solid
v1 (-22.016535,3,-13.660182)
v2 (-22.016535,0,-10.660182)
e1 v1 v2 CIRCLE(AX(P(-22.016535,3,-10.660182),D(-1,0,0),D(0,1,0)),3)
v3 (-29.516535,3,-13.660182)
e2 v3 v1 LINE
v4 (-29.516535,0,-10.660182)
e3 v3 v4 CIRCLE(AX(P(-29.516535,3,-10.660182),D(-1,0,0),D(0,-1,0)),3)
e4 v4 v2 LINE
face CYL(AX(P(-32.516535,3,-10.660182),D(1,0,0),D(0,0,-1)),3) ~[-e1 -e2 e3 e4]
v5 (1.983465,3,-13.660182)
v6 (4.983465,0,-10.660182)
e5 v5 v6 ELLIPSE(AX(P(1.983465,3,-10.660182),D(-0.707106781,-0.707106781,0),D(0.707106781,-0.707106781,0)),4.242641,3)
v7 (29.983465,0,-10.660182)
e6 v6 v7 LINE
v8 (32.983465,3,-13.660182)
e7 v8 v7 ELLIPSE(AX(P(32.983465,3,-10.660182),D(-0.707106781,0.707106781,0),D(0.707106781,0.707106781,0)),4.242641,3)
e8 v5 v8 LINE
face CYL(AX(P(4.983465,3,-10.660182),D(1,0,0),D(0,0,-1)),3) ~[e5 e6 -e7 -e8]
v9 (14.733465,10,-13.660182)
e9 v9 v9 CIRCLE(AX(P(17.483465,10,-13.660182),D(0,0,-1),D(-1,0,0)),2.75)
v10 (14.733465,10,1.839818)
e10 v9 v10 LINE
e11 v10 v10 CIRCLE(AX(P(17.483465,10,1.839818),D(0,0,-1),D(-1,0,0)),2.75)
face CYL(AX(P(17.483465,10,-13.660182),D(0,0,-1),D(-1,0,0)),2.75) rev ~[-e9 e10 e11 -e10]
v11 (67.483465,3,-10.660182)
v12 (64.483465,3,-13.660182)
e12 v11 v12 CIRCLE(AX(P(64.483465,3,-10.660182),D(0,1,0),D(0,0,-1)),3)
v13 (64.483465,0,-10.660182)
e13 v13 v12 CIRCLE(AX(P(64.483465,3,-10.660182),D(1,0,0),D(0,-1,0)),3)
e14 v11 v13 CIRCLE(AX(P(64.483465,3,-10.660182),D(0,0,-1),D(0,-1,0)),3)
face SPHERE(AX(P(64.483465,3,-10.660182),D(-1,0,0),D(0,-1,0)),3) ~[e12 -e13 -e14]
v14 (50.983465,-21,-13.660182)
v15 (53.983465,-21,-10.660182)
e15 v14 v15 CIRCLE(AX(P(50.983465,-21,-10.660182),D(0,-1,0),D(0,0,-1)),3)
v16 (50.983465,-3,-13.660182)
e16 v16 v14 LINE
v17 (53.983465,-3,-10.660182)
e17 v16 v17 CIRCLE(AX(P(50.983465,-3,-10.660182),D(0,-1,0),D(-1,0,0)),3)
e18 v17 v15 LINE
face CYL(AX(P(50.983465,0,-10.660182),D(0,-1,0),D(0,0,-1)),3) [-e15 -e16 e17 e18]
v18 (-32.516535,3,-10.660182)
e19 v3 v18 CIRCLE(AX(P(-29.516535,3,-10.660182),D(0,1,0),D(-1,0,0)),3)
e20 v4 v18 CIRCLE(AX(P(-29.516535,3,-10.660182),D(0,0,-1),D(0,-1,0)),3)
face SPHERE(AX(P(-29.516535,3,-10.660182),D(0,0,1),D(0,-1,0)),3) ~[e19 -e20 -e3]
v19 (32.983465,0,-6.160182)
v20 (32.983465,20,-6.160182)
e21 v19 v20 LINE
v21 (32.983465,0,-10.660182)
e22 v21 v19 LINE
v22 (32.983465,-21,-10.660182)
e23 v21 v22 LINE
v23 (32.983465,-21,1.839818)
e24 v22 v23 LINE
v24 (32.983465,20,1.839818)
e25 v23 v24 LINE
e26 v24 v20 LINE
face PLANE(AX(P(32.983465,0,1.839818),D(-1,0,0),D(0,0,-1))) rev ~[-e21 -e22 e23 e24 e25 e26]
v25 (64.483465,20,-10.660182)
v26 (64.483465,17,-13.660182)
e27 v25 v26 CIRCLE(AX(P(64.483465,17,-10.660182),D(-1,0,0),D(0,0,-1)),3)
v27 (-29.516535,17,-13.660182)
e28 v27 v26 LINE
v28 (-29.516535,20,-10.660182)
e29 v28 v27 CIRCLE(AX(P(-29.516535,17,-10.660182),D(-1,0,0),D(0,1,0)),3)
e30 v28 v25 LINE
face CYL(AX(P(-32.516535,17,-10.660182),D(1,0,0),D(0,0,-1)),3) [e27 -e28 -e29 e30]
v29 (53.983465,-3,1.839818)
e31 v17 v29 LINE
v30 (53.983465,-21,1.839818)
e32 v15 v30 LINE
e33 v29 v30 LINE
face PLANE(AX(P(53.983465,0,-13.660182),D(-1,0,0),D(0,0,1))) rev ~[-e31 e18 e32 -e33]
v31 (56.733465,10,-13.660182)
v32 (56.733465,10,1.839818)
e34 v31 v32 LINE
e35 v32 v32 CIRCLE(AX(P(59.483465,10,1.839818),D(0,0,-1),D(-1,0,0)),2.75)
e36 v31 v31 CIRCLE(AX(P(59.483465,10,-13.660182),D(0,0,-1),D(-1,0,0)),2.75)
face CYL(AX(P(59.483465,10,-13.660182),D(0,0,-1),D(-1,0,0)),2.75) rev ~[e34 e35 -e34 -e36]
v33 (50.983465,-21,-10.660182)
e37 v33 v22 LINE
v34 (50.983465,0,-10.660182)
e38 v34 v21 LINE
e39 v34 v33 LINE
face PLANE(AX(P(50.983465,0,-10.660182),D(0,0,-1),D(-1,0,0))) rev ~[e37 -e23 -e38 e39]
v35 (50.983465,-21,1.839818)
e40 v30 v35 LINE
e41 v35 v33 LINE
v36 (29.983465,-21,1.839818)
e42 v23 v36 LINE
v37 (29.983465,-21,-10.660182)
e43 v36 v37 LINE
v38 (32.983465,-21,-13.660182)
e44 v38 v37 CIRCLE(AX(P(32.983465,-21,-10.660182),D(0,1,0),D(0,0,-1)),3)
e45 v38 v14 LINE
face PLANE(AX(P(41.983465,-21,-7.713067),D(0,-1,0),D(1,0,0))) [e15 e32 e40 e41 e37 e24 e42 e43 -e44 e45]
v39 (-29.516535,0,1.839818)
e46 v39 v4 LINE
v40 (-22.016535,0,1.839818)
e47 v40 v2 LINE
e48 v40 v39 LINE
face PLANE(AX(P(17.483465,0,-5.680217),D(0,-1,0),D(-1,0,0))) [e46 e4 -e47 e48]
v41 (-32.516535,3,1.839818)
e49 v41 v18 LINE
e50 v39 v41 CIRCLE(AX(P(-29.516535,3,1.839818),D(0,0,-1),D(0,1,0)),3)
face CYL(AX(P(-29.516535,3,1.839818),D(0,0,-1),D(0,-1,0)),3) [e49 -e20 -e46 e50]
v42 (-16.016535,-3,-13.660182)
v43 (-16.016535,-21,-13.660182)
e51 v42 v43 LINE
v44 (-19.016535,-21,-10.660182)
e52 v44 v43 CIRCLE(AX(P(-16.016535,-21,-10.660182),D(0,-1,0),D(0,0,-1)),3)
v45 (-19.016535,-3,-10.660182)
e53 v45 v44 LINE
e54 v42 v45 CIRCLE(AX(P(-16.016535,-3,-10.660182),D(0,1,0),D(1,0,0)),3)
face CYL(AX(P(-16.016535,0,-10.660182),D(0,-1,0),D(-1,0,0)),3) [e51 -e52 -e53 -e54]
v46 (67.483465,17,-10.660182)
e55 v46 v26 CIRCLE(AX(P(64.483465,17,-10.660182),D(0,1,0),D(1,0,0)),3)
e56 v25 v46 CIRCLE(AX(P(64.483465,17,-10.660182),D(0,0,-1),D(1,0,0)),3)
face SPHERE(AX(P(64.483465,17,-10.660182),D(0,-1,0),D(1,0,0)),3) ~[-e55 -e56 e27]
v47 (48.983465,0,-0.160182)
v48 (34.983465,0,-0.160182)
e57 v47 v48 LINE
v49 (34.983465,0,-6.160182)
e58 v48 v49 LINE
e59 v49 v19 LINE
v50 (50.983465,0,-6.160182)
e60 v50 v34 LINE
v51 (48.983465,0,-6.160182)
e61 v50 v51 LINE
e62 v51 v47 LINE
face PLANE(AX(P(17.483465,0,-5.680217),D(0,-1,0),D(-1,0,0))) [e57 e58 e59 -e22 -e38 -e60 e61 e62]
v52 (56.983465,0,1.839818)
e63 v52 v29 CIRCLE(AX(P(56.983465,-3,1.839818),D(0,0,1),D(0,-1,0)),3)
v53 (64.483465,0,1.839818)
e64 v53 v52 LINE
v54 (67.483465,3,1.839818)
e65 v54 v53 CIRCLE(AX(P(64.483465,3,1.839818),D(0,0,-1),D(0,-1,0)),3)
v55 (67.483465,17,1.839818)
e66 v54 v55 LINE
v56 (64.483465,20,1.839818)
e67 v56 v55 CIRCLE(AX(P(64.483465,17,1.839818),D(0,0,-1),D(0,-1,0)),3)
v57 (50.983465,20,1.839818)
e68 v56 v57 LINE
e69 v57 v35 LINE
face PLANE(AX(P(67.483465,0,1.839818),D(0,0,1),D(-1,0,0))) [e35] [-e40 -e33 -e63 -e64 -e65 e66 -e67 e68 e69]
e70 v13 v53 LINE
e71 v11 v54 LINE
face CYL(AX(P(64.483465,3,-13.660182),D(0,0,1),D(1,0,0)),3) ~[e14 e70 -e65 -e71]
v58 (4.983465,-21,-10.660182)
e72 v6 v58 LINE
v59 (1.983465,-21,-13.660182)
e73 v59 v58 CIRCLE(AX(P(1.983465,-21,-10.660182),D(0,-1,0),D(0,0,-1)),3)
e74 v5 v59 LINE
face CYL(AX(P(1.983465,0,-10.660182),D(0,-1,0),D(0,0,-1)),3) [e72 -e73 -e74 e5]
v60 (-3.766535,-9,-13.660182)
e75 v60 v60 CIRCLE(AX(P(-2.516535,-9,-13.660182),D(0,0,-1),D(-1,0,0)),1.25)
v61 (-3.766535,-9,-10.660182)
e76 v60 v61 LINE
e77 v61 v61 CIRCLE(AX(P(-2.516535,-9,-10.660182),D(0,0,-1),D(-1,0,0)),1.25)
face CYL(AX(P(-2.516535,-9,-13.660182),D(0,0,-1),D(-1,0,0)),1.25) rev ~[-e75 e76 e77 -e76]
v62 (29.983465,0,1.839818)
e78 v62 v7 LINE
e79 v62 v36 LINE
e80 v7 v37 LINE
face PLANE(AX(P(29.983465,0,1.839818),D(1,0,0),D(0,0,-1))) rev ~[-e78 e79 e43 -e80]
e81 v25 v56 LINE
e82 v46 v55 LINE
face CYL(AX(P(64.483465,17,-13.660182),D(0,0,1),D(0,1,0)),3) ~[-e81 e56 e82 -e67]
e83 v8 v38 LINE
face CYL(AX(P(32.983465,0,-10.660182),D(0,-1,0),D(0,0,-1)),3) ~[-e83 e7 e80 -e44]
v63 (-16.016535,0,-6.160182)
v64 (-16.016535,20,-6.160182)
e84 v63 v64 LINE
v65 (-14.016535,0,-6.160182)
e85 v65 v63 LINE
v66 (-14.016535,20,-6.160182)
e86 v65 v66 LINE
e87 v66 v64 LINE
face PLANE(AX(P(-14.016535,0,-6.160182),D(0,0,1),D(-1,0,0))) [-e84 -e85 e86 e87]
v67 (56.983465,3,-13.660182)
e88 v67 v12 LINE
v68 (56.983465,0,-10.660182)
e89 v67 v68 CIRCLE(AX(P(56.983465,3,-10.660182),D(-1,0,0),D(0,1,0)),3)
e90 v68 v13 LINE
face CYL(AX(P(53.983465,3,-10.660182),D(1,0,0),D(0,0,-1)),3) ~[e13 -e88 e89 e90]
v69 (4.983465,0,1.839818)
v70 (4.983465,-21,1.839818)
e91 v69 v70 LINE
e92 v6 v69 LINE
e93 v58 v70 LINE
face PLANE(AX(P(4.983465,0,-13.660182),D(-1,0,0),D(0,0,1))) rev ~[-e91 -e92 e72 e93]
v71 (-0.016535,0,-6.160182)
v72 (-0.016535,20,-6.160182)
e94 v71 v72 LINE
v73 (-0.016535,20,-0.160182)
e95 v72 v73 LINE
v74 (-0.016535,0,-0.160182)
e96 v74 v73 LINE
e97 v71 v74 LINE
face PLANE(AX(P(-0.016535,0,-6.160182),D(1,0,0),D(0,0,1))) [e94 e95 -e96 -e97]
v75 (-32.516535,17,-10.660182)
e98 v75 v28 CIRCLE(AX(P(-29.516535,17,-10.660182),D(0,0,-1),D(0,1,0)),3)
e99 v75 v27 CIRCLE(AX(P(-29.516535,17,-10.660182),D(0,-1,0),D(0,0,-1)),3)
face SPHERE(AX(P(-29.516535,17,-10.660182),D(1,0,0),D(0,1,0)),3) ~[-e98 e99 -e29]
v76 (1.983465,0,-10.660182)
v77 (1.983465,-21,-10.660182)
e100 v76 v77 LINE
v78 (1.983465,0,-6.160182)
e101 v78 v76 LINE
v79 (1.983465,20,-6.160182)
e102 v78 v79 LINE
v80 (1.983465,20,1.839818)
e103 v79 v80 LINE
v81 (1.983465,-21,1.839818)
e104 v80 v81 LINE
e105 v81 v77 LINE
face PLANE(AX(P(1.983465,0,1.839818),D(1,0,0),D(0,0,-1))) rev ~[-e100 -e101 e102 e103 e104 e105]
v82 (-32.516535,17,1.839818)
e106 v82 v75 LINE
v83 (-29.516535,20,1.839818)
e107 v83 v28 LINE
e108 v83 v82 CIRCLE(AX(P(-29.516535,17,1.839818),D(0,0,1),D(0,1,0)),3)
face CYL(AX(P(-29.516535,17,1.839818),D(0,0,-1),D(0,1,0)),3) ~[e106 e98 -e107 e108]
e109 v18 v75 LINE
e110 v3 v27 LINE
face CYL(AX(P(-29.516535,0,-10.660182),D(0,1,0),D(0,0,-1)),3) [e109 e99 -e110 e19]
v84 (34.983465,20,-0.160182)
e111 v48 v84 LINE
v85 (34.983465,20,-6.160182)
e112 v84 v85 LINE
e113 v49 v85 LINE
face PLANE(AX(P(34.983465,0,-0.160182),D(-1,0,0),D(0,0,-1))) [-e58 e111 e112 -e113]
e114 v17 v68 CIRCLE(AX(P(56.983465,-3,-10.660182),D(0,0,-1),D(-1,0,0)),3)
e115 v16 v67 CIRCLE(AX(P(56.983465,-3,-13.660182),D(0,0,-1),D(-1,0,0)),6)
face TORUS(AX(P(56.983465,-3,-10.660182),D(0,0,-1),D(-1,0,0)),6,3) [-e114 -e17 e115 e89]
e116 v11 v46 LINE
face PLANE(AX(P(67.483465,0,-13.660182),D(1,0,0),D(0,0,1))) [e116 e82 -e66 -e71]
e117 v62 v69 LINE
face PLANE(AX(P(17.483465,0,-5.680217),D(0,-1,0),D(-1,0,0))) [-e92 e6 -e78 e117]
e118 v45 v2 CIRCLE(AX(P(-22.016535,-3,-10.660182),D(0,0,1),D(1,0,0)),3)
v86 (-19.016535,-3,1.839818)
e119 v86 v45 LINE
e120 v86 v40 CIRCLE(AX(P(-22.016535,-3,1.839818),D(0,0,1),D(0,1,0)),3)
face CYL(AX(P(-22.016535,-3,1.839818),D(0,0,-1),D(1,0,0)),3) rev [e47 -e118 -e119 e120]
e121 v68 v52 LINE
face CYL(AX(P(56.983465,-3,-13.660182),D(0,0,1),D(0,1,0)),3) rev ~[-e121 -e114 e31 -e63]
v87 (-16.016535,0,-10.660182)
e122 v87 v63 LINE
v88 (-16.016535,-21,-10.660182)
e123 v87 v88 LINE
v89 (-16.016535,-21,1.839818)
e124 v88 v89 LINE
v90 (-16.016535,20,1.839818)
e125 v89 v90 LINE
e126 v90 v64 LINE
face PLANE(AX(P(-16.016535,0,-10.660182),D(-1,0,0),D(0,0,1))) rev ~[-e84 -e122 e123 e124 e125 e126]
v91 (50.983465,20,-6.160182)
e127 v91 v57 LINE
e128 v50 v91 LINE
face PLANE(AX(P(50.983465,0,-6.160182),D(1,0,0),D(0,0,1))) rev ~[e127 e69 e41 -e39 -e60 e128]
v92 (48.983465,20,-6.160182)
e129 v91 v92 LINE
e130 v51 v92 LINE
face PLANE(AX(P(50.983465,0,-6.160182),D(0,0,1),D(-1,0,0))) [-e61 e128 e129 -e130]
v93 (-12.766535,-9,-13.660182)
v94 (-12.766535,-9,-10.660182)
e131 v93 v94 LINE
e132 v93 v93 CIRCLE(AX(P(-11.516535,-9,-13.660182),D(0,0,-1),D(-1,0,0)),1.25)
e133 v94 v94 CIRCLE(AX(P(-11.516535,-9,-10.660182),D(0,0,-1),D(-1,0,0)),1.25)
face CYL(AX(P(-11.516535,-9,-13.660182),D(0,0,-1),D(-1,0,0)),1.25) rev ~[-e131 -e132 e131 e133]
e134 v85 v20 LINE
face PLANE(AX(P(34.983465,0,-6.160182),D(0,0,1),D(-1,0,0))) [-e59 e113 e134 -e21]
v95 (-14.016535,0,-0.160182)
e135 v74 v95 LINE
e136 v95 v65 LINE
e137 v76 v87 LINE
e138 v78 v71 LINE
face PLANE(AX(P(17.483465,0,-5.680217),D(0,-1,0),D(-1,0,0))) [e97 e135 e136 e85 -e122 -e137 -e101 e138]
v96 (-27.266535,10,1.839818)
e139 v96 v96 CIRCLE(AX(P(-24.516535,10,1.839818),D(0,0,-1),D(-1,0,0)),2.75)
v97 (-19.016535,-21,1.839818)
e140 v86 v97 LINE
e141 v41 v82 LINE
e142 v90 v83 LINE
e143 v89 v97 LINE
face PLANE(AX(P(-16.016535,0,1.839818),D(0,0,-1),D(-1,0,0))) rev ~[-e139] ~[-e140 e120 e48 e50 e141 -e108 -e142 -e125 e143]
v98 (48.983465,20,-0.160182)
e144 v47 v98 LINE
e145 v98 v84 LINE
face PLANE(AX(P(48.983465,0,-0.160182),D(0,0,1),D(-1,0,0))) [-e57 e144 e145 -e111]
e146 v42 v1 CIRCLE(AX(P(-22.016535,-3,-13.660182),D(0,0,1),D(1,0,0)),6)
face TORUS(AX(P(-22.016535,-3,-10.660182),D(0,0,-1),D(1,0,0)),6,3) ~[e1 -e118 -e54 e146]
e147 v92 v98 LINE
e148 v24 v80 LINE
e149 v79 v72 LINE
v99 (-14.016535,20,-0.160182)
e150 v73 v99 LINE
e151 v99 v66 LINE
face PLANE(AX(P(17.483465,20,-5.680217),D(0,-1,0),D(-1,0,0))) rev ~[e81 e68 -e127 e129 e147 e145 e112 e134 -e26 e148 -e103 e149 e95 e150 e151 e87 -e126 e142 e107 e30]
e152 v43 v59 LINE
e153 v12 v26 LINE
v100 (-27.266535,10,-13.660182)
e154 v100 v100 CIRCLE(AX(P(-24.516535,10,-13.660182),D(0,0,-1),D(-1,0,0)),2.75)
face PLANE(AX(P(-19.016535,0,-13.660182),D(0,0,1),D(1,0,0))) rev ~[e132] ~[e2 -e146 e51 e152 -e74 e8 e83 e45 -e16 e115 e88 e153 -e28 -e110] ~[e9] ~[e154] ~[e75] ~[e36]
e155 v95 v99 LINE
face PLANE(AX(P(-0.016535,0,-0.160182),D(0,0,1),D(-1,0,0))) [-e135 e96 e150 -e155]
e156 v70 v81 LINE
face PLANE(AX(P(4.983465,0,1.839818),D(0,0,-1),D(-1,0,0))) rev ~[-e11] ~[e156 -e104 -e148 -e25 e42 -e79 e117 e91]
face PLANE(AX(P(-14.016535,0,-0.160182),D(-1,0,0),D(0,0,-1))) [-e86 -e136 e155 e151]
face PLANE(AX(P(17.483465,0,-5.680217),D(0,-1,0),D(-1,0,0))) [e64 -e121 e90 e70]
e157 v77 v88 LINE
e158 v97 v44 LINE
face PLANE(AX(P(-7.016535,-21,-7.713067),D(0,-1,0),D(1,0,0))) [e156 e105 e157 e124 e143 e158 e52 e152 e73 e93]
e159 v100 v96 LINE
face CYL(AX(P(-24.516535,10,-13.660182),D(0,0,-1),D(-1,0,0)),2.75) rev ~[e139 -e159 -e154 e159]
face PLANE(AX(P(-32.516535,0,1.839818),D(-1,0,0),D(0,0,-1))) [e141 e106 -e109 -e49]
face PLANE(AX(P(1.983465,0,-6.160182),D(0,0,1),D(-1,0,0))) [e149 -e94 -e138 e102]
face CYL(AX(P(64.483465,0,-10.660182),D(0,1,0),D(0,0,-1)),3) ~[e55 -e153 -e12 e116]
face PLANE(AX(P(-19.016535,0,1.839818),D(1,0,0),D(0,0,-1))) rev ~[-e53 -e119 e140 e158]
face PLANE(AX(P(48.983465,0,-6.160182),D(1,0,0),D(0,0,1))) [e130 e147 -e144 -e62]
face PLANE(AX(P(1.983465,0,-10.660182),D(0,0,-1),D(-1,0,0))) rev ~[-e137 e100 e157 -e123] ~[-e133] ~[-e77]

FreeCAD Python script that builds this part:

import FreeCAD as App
import Part
import Sketcher

V = App.Vector
Q = App.Units.Quantity


def edges_at(feature, points):
    """Names of the edges that pass closest to the given points."""
    edges = feature.Shape.Edges
    near = lambda p: min(range(len(edges)), key=lambda i: edges[i].distToShape(Part.Vertex(*p))[0])
    return sorted({f"Edge{near(p) + 1}" for p in points})


def add_polygon(sketch, points):
    """Adds a closed chain of lines whose ends are joined by coincident constraints."""
    first, n = sketch.GeometryCount, len(points)
    for a, b in zip(points, points[1:] + points[:1]):
        sketch.addGeometry(Part.LineSegment(App.Vector(*a, 0), App.Vector(*b, 0)), False)
    for i in range(n):
        sketch.addConstraint(Sketcher.Constraint("Coincident", first + i, 2, first + (i + 1) % n, 1))

doc = App.newDocument("Part")
body = doc.addObject("PartDesign::Body", "Body")

# Sketch on XZ plane
sketch1 = body.newObject("Sketcher::SketchObject", "Sketch")
sketch1.AttachmentSupport = (doc.getObject("XZ_Plane"), [""])
sketch1.MapMode = "FlatFace"
add_polygon(sketch1, [(-32.5, -13.7), (-32.5, 1.8), (-16, 1.8), (-16, -6.2), (-14, -6.2), (-14, -0.2), (0, -0.2), (0, -6.2), (2, -6.2), (2, 1.8), (33, 1.8), (33, -6.2), (35, -6.2), (35, -0.2), (49, -0.2), (49, -6.2), (51, -6.2), (51, 1.8), (67.5, 1.8), (67.5, -13.7)])  # lines 0-19
sketch1.addConstraint([
    Sketcher.Constraint("Vertical", 0),
    Sketcher.Constraint("Horizontal", 1),
    Sketcher.Constraint("Vertical", 2),
    Sketcher.Constraint("Horizontal", 3),
    Sketcher.Constraint("Vertical", 4),
    Sketcher.Constraint("Horizontal", 5),
    Sketcher.Constraint("Vertical", 6),
    Sketcher.Constraint("Horizontal", 7),
    Sketcher.Constraint("Vertical", 8),
    Sketcher.Constraint("Horizontal", 9),
    Sketcher.Constraint("Vertical", 10),
    Sketcher.Constraint("Horizontal", 11),
    Sketcher.Constraint("Vertical", 12),
    Sketcher.Constraint("Horizontal", 13),
    Sketcher.Constraint("Vertical", 14),
    Sketcher.Constraint("Horizontal", 15),
    Sketcher.Constraint("Vertical", 16),
    Sketcher.Constraint("Horizontal", 17),
    Sketcher.Constraint("Vertical", 18),
    Sketcher.Constraint("Horizontal", 19),
    Sketcher.Constraint("Horizontal", 3, 2, 6, 2),
    Sketcher.Constraint("Horizontal", 1, 2, 8, 2),
    Sketcher.Constraint("Horizontal", 7, 2, 10, 2),
    Sketcher.Constraint("Horizontal", 5, 2, 12, 2),
    Sketcher.Constraint("Horizontal", 11, 2, 14, 2),
    Sketcher.Constraint("Horizontal", 9, 2, 16, 2),
    Sketcher.Constraint("Equal", 3, 7),
    Sketcher.Constraint("Equal", 7, 11),
    Sketcher.Constraint("Equal", 5, 13),
    Sketcher.Constraint("Equal", 11, 15),
    Sketcher.Constraint("Equal", 1, 17),
    Sketcher.Constraint("DistanceX", 3, 1, 3, 2, Q("2 mm")),
    Sketcher.Constraint("DistanceX", 5, 1, 5, 2, Q("14 mm")),
    Sketcher.Constraint("DistanceX", 9, 1, 9, 2, Q("31 mm")),
    Sketcher.Constraint("DistanceX", 19, 2, 19, 1, Q("100 mm")),
    Sketcher.Constraint("DistanceY", 2, 2, 2, 1, Q("8 mm")),
    Sketcher.Constraint("DistanceY", 4, 1, 4, 2, Q("6 mm")),
    Sketcher.Constraint("DistanceY", 0, 1, 0, 2, Q("15.5 mm")),
    Sketcher.Constraint("DistanceX", 0, 2, -1, 1, Q("32.516535 mm")),
    Sketcher.Constraint("DistanceY", -1, 1, 0, 2, Q("1.839818 mm")),
])
pad1 = body.newObject("PartDesign::Pad", "Pad")
pad1.Profile = sketch1
pad1.Length = 20
pad1.Reversed = True

# Sketch on XZ plane
sketch2 = body.newObject("Sketcher::SketchObject", "Sketch001")
sketch2.AttachmentSupport = (doc.getObject("XZ_Plane"), [""])
sketch2.MapMode = "FlatFace"
add_polygon(sketch2, [(-19, 1.8), (-19, -13.7), (5, -13.7), (5, 1.8), (2, 1.8), (2, -10.7), (-16, -10.7), (-16, 1.8)])  # lines 0-7
add_polygon(sketch2, [(51, 1.8), (51, -10.7), (33, -10.7), (33, 1.8), (30, 1.8), (30, -13.7), (54, -13.7), (54, 1.8)])  # lines 8-15
sketch2.addConstraint([
    Sketcher.Constraint("Vertical", 0),
    Sketcher.Constraint("Horizontal", 1),
    Sketcher.Constraint("Vertical", 2),
    Sketcher.Constraint("Horizontal", 3),
    Sketcher.Constraint("Vertical", 4),
    Sketcher.Constraint("Horizontal", 5),
    Sketcher.Constraint("Vertical", 6),
    Sketcher.Constraint("Horizontal", 7),
    Sketcher.Constraint("Vertical", 8),
    Sketcher.Constraint("Horizontal", 9),
    Sketcher.Constraint("Vertical", 10),
    Sketcher.Constraint("Horizontal", 11),
    Sketcher.Constraint("Vertical", 12),
    Sketcher.Constraint("Horizontal", 13),
    Sketcher.Constraint("Vertical", 14),
    Sketcher.Constraint("Horizontal", 15),
    Sketcher.Constraint("Horizontal", 3, 2, 6, 2),
    Sketcher.Constraint("Horizontal", 5, 2, 8, 2),
    Sketcher.Constraint("Horizontal", 7, 2, 10, 2),
    Sketcher.Constraint("Horizontal", 1, 2, 12, 2),
    Sketcher.Constraint("Horizontal", 11, 2, 14, 2),
    Sketcher.Constraint("Equal", 3, 7),
    Sketcher.Constraint("Equal", 5, 9),
    Sketcher.Constraint("Equal", 7, 11),
    Sketcher.Constraint("Equal", 1, 13),
    Sketcher.Constraint("DistanceX", 1, 1, 1, 2, Q("24 mm")),
    Sketcher.Constraint("DistanceX", 3, 2, 3, 1, Q("3 mm")),
    Sketcher.Constraint("DistanceY", 0, 2, 0, 1, Q("15.5 mm")),
    Sketcher.Constraint("DistanceY", 4, 2, 4, 1, Q("12.5 mm")),
    Sketcher.Constraint("DistanceX", 1, 2, 8, 2, Q("46 mm")),
    Sketcher.Constraint("DistanceX", 0, 2, -1, 1, Q("19.016535 mm")),
    Sketcher.Constraint("DistanceY", 0, 2, -1, 1, Q("13.660182 mm")),
])
pad2 = body.newObject("PartDesign::Pad", "Pad001")
pad2.Profile = sketch2
pad2.Length = 21

# Sketch on XY plane
sketch3 = body.newObject("Sketcher::SketchObject", "Sketch002")
sketch3.AttachmentSupport = (doc.getObject("XY_Plane"), [""])
sketch3.MapMode = "FlatFace"
sketch3.AttachmentOffset = App.Placement(V(0, 0, -13.660182), App.Rotation())
sketch3.addGeometry([
    Part.Circle(V(-24.5, 10, 0), V(0, 0, 1), 2.8),
    Part.Circle(V(59.5, 10, 0), V(0, 0, 1), 2.8),
    Part.Circle(V(17.5, 10, 0), V(0, 0, 1), 2.8),
], False)
sketch3.addConstraint([
    Sketcher.Constraint("Equal", 0, 1),
    Sketcher.Constraint("Equal", 1, 2),
    Sketcher.Constraint("Horizontal", 0, 3, 1, 3),
    Sketcher.Constraint("Horizontal", 1, 3, 2, 3),
    Sketcher.Constraint("Diameter", 0, Q("5.5 mm")),
    Sketcher.Constraint("DistanceY", -1, 1, 0, 3, Q("10 mm")),
    Sketcher.Constraint("DistanceX", 0, 3, 1, 3, Q("84 mm")),
    Sketcher.Constraint("DistanceX", 0, 3, 2, 3, Q("42 mm")),
    Sketcher.Constraint("DistanceX", 0, 3, -1, 1, Q("24.516535 mm")),
])
pocket1 = body.newObject("PartDesign::Pocket", "Pocket")
pocket1.Profile = sketch3
pocket1.Type = "ThroughAll"
pocket1.Reversed = True
doc.recompute()

fillet = body.newObject("PartDesign::Fillet", "Fillet")
fillet.Base = (pocket1, edges_at(pocket1, [
    (17.483, 0, -13.66),
    (29.983, -10.5, -13.66),
    (53.983, -10.5, -13.66),
    (60.733, 0, -13.66),
    (67.483, 0, -5.91),
    (67.483, 10, -13.66),
    (67.483, 20, -5.91),
    (17.483, 20, -13.66),
    (-32.517, 20, -5.91),
    (-32.517, 0, -5.91),
    (-19.017, 0, -5.91),
    (4.983, -10.5, -13.66),
    (-19.017, -10.5, -13.66),
    (-25.767, 0, -13.66),
    (-32.517, 10, -13.66),
    (53.983, 0, -5.91),
]))
fillet.Radius = 3

# Sketch on XY plane
sketch4 = body.newObject("Sketcher::SketchObject", "Sketch003")
sketch4.AttachmentSupport = (doc.getObject("XY_Plane"), [""])
sketch4.MapMode = "FlatFace"
sketch4.AttachmentOffset = App.Placement(V(0, 0, -13.660182), App.Rotation())
sketch4.addGeometry([
    Part.Circle(V(-2.5, -9, 0), V(0, 0, 1), 1.2),
    Part.Circle(V(-11.5, -9, 0), V(0, 0, 1), 1.2),
], False)
sketch4.addConstraint([
    Sketcher.Constraint("Equal", 0, 1),
    Sketcher.Constraint("Horizontal", 0, 3, 1, 3),
    Sketcher.Constraint("Diameter", 0, Q("2.5 mm")),
    Sketcher.Constraint("DistanceY", 0, 3, -1, 1, Q("9 mm")),
    Sketcher.Constraint("DistanceX", 1, 3, 0, 3, Q("9 mm")),
    Sketcher.Constraint("DistanceX", 0, 3, -1, 1, Q("2.516535 mm")),
])
pocket2 = body.newObject("PartDesign::Pocket", "Pocket001")
pocket2.Profile = sketch4
pocket2.Length = 10
pocket2.Reversed = True

doc.recompute()
